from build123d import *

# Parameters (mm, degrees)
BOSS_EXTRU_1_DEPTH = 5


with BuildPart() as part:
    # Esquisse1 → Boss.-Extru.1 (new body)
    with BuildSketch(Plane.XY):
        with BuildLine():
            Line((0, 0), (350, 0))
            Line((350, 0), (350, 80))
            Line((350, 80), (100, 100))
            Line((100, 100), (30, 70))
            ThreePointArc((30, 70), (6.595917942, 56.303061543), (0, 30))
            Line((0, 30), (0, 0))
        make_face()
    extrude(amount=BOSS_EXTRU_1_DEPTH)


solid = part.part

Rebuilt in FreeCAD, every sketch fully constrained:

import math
import FreeCAD as App
import Part
import Sketcher

doc = App.newDocument("Part")
params = doc.addObject("Spreadsheet::Sheet", "Params")
for row, (alias, value) in enumerate([
    ("sketch1_radius", "35 mm"),
    ("sketch1_width", "350 mm"),
    ("sketch1_height", "80 mm"),
    ("sketch1_height2", "30 mm"),
    ("pad1_length", "5 mm"),
], start=1):
    params.set(f"A{row}", alias)
    params.set(f"B{row}", "=" + value)
    params.setAlias(f"B{row}", alias)

body = doc.addObject("PartDesign::Body", "Body")

# Sketch on XY plane
sketch1 = doc.addObject("Sketcher::SketchObject", "Sketch")
body.addObject(sketch1)
sketch1.AttachmentSupport = (doc.XY_Plane, [""])
sketch1.MapMode = "FlatFace"
sketch1.addGeometry([
    Part.LineSegment(App.Vector(0, 0, 0), App.Vector(350, 0, 0)),  # 0
    Part.LineSegment(App.Vector(350, 0, 0), App.Vector(350, 80, 0)),  # 1
    Part.LineSegment(App.Vector(350, 80, 0), App.Vector(100, 100, 0)),  # 2
    Part.LineSegment(App.Vector(100, 100, 0), App.Vector(30, 70, 0)),  # 3
    Part.ArcOfCircle(Part.Circle(App.Vector(35, 35, 0), App.Vector(0, 0, 1), 35), math.radians(98), math.radians(189)),  # 4
    Part.LineSegment(App.Vector(0, 30, 0), App.Vector(0, 0, 0)),  # 5
], False)
sketch1.addConstraint([
    Sketcher.Constraint("Coincident", 0, 2, 1, 1),
    Sketcher.Constraint("Coincident", 1, 2, 2, 1),
    Sketcher.Constraint("Coincident", 2, 2, 3, 1),
    Sketcher.Constraint("Coincident", 3, 2, 4, 1),
    Sketcher.Constraint("Coincident", 4, 2, 5, 1),
    Sketcher.Constraint("Coincident", 5, 2, 0, 1),
    Sketcher.Constraint("Horizontal", 0),
    Sketcher.Constraint("Vertical", 1),
    Sketcher.Constraint("Vertical", 5),
    Sketcher.Constraint("Coincident", 5, 2, -1, 1),
    Sketcher.Constraint("Radius", 4, 35.0),
    Sketcher.Constraint("DistanceX", 0, 1, 0, 2, 350.0),
    Sketcher.Constraint("DistanceY", 1, 1, 1, 2, 80.0),
    Sketcher.Constraint("DistanceY", 5, 2, 5, 1, 30.0),
    Sketcher.Constraint("DistanceX", -1, 1, 2, 2, 100.0),
    Sketcher.Constraint("DistanceY", -1, 1, 2, 2, 100.0),
    Sketcher.Constraint("DistanceX", -1, 1, 3, 2, 30.0),
    Sketcher.Constraint("DistanceY", -1, 1, 3, 2, 70.0),
])
sketch1.setExpression("Constraints[10]", "Params.sketch1_radius")
sketch1.setExpression("Constraints[11]", "Params.sketch1_width")
sketch1.setExpression("Constraints[12]", "Params.sketch1_height")
sketch1.setExpression("Constraints[13]", "Params.sketch1_height2")
pad1 = doc.addObject("PartDesign::Pad", "Pad")
body.addObject(pad1)
pad1.Profile = sketch1
pad1.setExpression("Length", "Params.pad1_length")

doc.recompute()
